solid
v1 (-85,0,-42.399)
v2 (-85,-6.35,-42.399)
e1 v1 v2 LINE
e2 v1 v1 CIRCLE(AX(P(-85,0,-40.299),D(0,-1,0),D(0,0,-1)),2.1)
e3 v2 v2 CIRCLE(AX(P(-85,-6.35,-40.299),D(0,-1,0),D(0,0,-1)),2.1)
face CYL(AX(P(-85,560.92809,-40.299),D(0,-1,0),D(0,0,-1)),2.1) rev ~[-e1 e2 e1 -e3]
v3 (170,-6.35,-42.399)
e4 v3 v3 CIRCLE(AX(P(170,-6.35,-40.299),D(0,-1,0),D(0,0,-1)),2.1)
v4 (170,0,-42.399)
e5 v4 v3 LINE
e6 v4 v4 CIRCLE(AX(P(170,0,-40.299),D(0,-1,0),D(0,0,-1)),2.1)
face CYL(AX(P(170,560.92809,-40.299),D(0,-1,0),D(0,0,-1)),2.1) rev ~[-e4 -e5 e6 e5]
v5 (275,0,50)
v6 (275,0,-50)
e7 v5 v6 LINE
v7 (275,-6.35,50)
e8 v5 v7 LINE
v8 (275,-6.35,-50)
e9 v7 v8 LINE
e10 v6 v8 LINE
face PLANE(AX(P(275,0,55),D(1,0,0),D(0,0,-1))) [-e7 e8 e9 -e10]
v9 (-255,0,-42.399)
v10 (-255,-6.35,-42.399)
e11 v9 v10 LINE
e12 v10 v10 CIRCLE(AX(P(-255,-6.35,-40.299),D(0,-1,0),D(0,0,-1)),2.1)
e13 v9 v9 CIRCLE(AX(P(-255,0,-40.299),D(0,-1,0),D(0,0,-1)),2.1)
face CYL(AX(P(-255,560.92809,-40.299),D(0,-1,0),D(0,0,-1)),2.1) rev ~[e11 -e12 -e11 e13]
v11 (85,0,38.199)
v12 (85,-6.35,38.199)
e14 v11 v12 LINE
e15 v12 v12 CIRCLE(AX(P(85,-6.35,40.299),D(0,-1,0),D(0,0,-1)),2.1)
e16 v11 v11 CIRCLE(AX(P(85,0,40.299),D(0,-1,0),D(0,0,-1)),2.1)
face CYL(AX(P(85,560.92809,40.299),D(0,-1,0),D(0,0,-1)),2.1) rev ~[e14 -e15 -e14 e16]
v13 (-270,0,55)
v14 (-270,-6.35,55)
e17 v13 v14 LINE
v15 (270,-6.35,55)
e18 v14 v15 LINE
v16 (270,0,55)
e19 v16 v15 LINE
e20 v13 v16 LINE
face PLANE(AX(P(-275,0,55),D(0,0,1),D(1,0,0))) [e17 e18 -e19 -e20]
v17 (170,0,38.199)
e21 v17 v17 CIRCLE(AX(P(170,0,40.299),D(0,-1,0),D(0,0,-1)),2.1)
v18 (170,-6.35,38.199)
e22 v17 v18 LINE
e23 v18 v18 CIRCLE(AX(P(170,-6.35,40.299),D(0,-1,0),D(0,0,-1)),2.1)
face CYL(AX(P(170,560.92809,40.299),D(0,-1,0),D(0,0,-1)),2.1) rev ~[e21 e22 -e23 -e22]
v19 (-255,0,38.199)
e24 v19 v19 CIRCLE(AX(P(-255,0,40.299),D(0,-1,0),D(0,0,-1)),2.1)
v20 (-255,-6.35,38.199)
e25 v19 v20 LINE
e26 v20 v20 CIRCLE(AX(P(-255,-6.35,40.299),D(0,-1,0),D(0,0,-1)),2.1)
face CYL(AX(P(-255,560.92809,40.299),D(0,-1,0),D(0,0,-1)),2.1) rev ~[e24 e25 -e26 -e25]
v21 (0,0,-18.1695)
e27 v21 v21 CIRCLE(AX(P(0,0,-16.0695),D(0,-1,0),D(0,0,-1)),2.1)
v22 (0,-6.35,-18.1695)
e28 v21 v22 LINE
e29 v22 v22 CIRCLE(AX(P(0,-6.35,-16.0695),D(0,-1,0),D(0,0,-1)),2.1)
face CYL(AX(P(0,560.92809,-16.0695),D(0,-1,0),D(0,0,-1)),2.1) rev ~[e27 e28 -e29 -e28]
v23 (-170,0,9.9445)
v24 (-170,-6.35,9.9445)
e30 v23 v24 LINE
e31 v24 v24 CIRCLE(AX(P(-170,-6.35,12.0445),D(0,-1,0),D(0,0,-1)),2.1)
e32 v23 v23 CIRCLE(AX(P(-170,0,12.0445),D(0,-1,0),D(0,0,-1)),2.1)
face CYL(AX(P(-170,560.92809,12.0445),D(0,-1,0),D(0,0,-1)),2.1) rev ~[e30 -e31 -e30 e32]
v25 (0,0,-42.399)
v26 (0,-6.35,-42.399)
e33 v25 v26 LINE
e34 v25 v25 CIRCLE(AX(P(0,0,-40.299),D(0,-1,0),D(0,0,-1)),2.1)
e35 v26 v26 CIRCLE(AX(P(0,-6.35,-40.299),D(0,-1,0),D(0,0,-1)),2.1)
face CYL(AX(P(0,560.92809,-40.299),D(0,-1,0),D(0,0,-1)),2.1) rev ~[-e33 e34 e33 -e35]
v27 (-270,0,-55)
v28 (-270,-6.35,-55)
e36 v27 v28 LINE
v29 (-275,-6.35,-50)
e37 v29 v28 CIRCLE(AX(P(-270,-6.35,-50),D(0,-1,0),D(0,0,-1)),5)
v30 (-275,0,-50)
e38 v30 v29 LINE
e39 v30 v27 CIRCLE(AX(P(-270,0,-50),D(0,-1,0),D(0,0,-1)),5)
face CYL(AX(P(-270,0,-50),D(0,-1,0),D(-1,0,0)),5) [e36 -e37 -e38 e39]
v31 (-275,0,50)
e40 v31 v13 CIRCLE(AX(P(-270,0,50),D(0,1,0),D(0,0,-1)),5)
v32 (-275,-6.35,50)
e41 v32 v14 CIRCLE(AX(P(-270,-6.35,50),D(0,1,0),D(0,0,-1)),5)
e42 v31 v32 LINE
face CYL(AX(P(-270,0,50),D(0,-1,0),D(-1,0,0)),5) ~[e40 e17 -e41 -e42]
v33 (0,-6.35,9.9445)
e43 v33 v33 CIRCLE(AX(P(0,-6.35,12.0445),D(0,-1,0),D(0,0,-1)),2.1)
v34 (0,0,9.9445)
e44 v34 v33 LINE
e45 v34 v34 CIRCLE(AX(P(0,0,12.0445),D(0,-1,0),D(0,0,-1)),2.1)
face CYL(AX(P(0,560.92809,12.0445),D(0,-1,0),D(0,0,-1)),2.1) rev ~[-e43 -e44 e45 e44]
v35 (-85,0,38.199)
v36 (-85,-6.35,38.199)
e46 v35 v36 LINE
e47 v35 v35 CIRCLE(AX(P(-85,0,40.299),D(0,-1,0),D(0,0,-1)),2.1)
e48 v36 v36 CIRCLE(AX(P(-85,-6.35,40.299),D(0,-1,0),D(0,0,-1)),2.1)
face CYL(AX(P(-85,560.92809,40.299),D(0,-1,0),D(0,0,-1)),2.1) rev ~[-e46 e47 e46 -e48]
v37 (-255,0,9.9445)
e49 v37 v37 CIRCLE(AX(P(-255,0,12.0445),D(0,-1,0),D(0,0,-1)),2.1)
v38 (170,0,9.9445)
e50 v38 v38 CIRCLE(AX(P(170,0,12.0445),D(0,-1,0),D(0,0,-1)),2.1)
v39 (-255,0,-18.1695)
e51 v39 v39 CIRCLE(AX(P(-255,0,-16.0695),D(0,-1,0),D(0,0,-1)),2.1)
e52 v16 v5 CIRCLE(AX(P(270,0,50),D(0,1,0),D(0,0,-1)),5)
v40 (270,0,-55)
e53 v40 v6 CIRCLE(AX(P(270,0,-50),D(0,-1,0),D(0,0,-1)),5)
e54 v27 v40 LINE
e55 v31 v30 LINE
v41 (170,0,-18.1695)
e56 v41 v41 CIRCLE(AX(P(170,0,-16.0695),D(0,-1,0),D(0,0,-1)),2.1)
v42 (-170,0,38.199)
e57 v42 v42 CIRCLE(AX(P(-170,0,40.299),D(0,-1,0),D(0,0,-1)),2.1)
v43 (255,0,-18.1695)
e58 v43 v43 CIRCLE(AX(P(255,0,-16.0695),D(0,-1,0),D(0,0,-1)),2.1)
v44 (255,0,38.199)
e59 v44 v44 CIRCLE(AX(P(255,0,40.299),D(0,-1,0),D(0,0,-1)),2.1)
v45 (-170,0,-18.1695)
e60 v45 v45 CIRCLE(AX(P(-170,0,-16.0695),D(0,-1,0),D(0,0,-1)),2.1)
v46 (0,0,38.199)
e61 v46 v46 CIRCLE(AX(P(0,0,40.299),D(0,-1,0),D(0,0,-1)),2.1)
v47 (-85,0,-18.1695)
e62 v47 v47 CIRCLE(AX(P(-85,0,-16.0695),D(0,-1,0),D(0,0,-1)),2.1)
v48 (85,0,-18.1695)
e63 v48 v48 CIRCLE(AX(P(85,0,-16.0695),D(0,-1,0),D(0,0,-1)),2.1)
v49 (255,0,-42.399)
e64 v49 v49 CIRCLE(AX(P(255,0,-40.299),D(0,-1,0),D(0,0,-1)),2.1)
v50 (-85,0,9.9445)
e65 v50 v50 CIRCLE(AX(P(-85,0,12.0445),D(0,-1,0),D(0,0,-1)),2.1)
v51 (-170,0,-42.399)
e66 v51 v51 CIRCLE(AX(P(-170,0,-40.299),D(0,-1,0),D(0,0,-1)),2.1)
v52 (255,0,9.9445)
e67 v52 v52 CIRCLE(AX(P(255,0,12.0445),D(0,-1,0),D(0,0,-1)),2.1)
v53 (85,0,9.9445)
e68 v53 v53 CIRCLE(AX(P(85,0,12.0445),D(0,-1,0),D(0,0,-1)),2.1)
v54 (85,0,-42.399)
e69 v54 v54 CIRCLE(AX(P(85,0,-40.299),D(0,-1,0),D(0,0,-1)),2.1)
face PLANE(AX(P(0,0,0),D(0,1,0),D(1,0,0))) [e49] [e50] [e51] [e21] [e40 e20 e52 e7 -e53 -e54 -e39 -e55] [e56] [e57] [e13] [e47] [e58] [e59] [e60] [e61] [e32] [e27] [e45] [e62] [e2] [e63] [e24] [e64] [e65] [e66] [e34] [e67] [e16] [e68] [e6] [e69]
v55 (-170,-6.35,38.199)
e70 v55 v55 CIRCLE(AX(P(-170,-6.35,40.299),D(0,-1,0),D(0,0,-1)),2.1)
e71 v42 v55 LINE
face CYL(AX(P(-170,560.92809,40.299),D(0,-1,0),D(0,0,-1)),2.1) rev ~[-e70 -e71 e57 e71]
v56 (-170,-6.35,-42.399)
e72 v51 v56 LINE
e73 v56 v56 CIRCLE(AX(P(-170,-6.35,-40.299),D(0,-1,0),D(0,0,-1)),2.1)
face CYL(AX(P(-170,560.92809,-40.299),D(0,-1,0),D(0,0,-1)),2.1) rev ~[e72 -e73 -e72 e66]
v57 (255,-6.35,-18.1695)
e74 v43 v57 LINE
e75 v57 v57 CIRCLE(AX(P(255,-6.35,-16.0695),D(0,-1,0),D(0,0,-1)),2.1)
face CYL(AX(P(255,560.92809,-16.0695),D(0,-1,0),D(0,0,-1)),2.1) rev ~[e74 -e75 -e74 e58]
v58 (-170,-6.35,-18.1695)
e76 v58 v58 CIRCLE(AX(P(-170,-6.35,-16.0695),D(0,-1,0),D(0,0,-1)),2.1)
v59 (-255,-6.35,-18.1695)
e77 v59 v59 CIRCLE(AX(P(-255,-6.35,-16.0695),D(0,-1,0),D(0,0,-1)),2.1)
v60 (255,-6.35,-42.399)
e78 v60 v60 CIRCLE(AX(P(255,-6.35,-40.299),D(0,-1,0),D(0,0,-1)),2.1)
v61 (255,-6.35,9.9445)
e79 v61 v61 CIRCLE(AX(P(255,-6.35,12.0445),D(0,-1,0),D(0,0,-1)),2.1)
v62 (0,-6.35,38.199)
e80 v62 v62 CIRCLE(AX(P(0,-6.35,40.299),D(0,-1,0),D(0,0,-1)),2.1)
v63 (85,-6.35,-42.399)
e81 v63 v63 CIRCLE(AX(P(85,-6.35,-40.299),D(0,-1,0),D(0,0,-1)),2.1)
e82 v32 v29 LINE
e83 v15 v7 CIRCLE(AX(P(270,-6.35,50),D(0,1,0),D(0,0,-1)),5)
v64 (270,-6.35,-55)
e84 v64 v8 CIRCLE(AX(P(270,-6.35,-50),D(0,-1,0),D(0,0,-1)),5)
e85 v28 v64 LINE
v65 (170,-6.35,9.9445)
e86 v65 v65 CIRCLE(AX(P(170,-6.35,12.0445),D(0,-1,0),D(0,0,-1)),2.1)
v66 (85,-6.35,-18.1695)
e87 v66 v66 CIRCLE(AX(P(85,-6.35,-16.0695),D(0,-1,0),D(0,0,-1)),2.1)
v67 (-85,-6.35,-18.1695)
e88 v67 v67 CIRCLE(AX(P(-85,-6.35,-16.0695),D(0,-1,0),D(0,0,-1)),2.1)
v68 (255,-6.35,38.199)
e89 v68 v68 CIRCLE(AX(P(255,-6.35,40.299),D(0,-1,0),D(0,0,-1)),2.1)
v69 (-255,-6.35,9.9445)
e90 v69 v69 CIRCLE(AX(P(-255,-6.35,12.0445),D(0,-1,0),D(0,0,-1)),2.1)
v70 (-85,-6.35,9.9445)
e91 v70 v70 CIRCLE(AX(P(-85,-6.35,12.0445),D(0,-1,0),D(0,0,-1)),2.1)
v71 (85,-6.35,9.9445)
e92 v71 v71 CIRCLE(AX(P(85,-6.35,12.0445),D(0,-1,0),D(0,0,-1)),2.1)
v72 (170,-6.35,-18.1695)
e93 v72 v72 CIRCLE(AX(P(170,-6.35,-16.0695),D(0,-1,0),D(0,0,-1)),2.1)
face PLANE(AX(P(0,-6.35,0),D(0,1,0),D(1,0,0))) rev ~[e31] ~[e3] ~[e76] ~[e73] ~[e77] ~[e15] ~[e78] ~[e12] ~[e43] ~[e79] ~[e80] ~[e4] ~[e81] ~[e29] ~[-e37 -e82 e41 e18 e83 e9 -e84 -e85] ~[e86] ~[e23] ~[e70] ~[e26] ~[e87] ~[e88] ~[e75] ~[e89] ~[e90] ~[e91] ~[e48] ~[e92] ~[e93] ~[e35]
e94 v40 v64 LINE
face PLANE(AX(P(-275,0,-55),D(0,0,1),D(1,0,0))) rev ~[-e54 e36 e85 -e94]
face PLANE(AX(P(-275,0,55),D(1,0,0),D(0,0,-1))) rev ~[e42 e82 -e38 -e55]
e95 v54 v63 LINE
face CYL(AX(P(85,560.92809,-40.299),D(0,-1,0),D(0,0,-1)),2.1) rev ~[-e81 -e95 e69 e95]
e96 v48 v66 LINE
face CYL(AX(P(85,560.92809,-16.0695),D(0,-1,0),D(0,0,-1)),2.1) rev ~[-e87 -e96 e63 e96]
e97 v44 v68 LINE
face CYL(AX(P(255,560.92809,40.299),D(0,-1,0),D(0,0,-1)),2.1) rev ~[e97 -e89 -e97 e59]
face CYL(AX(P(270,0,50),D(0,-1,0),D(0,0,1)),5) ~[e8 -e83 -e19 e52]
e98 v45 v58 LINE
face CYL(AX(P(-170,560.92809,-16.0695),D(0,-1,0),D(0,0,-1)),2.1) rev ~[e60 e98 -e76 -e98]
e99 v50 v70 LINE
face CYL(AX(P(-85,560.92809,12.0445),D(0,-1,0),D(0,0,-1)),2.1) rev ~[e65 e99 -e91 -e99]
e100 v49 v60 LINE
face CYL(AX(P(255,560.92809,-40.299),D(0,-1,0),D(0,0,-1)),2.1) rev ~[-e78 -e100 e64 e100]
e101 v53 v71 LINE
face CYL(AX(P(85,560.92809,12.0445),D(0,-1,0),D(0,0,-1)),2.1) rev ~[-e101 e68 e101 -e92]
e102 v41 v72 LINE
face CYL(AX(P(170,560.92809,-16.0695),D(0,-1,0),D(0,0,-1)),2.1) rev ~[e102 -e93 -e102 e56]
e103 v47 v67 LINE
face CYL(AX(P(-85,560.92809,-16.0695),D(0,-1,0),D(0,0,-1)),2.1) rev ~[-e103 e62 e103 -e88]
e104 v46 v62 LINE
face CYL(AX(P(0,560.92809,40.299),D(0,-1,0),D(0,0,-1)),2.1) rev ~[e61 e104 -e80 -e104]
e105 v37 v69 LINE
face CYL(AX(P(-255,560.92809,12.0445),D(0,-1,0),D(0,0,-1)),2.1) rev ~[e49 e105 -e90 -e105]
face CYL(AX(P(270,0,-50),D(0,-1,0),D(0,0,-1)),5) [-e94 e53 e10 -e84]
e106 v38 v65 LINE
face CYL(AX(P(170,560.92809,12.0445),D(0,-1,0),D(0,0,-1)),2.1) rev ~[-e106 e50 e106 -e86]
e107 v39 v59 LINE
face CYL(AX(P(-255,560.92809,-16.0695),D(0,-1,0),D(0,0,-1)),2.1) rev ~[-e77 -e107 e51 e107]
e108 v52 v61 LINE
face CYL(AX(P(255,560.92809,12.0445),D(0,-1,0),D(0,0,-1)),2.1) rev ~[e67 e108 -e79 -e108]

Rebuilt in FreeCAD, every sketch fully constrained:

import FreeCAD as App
import Part
import Sketcher

V = App.Vector


def edges_at(feature, points):
    """Names of the edges that pass closest to the given points."""
    edges = feature.Shape.Edges
    near = lambda p: min(range(len(edges)), key=lambda i: edges[i].distToShape(Part.Vertex(*p))[0])
    return sorted({f"Edge{near(p) + 1}" for p in points})

doc = App.newDocument("Part")
params = doc.addObject("Spreadsheet::Sheet", "Params")
for row, (alias, value) in enumerate([
    ("sketch1_width", "550 mm"),
    ("sketch1_height", "110 mm"),
    ("pad1_length", "6.35 mm"),
    ("sketch2_diameter", "4.2 mm"),
    ("hole_diameter", "4.2 mm"),
    ("linearpattern_pitch", "85 mm"),
    ("linearpattern2_pitch", "85 mm"),
    ("fillet_radius", "5 mm"),
], start=1):
    params.set(f"A{row}", alias)
    params.set(f"B{row}", "=" + value)
    params.setAlias(f"B{row}", alias)

body = doc.addObject("PartDesign::Body", "Body")

# Sketch on XZ plane
sketch1 = doc.addObject("Sketcher::SketchObject", "Sketch")
body.addObject(sketch1)
sketch1.AttachmentSupport = (doc.XZ_Plane, [""])
sketch1.MapMode = "FlatFace"
sketch1.addGeometry(Part.LineSegment(V(-275, -55, 0), V(-275, 55, 0)), False)
sketch1.addGeometry(Part.LineSegment(V(-275, 55, 0), V(275, 55, 0)), False)
sketch1.addGeometry(Part.LineSegment(V(275, 55, 0), V(275, -55, 0)), False)
sketch1.addGeometry(Part.LineSegment(V(275, -55, 0), V(-275, -55, 0)), False)
sketch1.addConstraint(Sketcher.Constraint("Coincident", 0, 2, 1, 1))
sketch1.addConstraint(Sketcher.Constraint("Coincident", 1, 2, 2, 1))
sketch1.addConstraint(Sketcher.Constraint("Coincident", 2, 2, 3, 1))
sketch1.addConstraint(Sketcher.Constraint("Coincident", 3, 2, 0, 1))
sketch1.addConstraint(Sketcher.Constraint("Vertical", 0))
sketch1.addConstraint(Sketcher.Constraint("Horizontal", 1))
sketch1.addConstraint(Sketcher.Constraint("Vertical", 2))
sketch1.addConstraint(Sketcher.Constraint("Horizontal", 3))
sketch1.addConstraint(Sketcher.Constraint("Symmetric", 0, 2, 2, 2, -1, 1))
sketch1.addConstraint(Sketcher.Constraint("DistanceX", 1, 1, 1, 2, 550.0))
sketch1.addConstraint(Sketcher.Constraint("DistanceY", 0, 1, 0, 2, 110.0))
sketch1.setExpression("Constraints[9]", "Params.sketch1_width")
sketch1.setExpression("Constraints[10]", "Params.sketch1_height")
pad1 = doc.addObject("PartDesign::Pad", "Pad")
body.addObject(pad1)
pad1.Profile = sketch1
pad1.setExpression("Length", "Params.pad1_length")

# Sketch on XZ plane
sketch2 = doc.addObject("Sketcher::SketchObject", "Sketch001")
body.addObject(sketch2)
sketch2.AttachmentSupport = (doc.XZ_Plane, [""])
sketch2.MapMode = "FlatFace"
sketch2.addGeometry(Part.Circle(V(0, -40.3, 0), V(0, 0, 1), 2.1), False)
sketch2.addGeometry(Part.Circle(V(0, -16.1, 0), V(0, 0, 1), 2.1), False)
sketch2.addGeometry(Part.Circle(V(0, 12, 0), V(0, 0, 1), 2.1), False)
sketch2.addGeometry(Part.Circle(V(0, 40.3, 0), V(0, 0, 1), 2.1), False)
sketch2.addConstraint(Sketcher.Constraint("Equal", 0, 1))
sketch2.addConstraint(Sketcher.Constraint("Equal", 1, 2))
sketch2.addConstraint(Sketcher.Constraint("Equal", 2, 3))
sketch2.addConstraint(Sketcher.Constraint("Symmetric", 0, 3, 3, 3, -1, 1))
sketch2.addConstraint(Sketcher.Constraint("PointOnObject", 0, 3, -2))
sketch2.addConstraint(Sketcher.Constraint("PointOnObject", 1, 3, -2))
sketch2.addConstraint(Sketcher.Constraint("PointOnObject", 2, 3, -2))
sketch2.addConstraint(Sketcher.Constraint("Diameter", 0, 4.2))
sketch2.addConstraint(Sketcher.Constraint("DistanceY", 0, 3, -1, 1, 40.299))
sketch2.addConstraint(Sketcher.Constraint("DistanceY", 1, 3, 2, 3, 28.114))
sketch2.addConstraint(Sketcher.Constraint("DistanceY", 1, 3, -1, 1, 16.0695))
sketch2.setExpression("Constraints[7]", "Params.sketch2_diameter")
doc.recompute()
hole = doc.addObject("PartDesign::Hole", "Hole")
body.addObject(hole)
hole.Profile = sketch2
hole.ThreadType = "None"
hole.setExpression("Diameter", "Params.hole_diameter")
hole.DepthType = "ThroughAll"
hole.Reversed = True
doc.recompute()

linearpattern = doc.addObject("PartDesign::LinearPattern", "LinearPattern")
body.addObject(linearpattern)
linearpattern.Originals = [hole]
linearpattern.Direction = (doc.X_Axis, [""])
linearpattern.Mode = "offset"
linearpattern.setExpression("Offset", "Params.linearpattern_pitch")
linearpattern.Occurrences = 4
body.Tip = linearpattern
doc.recompute()

linearpattern2 = doc.addObject("PartDesign::LinearPattern", "LinearPattern001")
body.addObject(linearpattern2)
linearpattern2.Originals = [hole]
linearpattern2.Direction = (doc.X_Axis, [""])
linearpattern2.Mode = "offset"
linearpattern2.setExpression("Offset", "Params.linearpattern2_pitch")
linearpattern2.Occurrences = 4
linearpattern2.Reversed = True
body.Tip = linearpattern2
doc.recompute()

fillet = doc.addObject("PartDesign::Fillet", "Fillet")
body.addObject(fillet)
fillet.Base = (linearpattern2, edges_at(linearpattern2, [
    (-275, -3.175, -55),
    (275, -3.175, -55),
    (275, -3.175, 55),
    (-275, -3.175, 55),
]))
fillet.setExpression("Radius", "Params.fillet_radius")

doc.recompute()
